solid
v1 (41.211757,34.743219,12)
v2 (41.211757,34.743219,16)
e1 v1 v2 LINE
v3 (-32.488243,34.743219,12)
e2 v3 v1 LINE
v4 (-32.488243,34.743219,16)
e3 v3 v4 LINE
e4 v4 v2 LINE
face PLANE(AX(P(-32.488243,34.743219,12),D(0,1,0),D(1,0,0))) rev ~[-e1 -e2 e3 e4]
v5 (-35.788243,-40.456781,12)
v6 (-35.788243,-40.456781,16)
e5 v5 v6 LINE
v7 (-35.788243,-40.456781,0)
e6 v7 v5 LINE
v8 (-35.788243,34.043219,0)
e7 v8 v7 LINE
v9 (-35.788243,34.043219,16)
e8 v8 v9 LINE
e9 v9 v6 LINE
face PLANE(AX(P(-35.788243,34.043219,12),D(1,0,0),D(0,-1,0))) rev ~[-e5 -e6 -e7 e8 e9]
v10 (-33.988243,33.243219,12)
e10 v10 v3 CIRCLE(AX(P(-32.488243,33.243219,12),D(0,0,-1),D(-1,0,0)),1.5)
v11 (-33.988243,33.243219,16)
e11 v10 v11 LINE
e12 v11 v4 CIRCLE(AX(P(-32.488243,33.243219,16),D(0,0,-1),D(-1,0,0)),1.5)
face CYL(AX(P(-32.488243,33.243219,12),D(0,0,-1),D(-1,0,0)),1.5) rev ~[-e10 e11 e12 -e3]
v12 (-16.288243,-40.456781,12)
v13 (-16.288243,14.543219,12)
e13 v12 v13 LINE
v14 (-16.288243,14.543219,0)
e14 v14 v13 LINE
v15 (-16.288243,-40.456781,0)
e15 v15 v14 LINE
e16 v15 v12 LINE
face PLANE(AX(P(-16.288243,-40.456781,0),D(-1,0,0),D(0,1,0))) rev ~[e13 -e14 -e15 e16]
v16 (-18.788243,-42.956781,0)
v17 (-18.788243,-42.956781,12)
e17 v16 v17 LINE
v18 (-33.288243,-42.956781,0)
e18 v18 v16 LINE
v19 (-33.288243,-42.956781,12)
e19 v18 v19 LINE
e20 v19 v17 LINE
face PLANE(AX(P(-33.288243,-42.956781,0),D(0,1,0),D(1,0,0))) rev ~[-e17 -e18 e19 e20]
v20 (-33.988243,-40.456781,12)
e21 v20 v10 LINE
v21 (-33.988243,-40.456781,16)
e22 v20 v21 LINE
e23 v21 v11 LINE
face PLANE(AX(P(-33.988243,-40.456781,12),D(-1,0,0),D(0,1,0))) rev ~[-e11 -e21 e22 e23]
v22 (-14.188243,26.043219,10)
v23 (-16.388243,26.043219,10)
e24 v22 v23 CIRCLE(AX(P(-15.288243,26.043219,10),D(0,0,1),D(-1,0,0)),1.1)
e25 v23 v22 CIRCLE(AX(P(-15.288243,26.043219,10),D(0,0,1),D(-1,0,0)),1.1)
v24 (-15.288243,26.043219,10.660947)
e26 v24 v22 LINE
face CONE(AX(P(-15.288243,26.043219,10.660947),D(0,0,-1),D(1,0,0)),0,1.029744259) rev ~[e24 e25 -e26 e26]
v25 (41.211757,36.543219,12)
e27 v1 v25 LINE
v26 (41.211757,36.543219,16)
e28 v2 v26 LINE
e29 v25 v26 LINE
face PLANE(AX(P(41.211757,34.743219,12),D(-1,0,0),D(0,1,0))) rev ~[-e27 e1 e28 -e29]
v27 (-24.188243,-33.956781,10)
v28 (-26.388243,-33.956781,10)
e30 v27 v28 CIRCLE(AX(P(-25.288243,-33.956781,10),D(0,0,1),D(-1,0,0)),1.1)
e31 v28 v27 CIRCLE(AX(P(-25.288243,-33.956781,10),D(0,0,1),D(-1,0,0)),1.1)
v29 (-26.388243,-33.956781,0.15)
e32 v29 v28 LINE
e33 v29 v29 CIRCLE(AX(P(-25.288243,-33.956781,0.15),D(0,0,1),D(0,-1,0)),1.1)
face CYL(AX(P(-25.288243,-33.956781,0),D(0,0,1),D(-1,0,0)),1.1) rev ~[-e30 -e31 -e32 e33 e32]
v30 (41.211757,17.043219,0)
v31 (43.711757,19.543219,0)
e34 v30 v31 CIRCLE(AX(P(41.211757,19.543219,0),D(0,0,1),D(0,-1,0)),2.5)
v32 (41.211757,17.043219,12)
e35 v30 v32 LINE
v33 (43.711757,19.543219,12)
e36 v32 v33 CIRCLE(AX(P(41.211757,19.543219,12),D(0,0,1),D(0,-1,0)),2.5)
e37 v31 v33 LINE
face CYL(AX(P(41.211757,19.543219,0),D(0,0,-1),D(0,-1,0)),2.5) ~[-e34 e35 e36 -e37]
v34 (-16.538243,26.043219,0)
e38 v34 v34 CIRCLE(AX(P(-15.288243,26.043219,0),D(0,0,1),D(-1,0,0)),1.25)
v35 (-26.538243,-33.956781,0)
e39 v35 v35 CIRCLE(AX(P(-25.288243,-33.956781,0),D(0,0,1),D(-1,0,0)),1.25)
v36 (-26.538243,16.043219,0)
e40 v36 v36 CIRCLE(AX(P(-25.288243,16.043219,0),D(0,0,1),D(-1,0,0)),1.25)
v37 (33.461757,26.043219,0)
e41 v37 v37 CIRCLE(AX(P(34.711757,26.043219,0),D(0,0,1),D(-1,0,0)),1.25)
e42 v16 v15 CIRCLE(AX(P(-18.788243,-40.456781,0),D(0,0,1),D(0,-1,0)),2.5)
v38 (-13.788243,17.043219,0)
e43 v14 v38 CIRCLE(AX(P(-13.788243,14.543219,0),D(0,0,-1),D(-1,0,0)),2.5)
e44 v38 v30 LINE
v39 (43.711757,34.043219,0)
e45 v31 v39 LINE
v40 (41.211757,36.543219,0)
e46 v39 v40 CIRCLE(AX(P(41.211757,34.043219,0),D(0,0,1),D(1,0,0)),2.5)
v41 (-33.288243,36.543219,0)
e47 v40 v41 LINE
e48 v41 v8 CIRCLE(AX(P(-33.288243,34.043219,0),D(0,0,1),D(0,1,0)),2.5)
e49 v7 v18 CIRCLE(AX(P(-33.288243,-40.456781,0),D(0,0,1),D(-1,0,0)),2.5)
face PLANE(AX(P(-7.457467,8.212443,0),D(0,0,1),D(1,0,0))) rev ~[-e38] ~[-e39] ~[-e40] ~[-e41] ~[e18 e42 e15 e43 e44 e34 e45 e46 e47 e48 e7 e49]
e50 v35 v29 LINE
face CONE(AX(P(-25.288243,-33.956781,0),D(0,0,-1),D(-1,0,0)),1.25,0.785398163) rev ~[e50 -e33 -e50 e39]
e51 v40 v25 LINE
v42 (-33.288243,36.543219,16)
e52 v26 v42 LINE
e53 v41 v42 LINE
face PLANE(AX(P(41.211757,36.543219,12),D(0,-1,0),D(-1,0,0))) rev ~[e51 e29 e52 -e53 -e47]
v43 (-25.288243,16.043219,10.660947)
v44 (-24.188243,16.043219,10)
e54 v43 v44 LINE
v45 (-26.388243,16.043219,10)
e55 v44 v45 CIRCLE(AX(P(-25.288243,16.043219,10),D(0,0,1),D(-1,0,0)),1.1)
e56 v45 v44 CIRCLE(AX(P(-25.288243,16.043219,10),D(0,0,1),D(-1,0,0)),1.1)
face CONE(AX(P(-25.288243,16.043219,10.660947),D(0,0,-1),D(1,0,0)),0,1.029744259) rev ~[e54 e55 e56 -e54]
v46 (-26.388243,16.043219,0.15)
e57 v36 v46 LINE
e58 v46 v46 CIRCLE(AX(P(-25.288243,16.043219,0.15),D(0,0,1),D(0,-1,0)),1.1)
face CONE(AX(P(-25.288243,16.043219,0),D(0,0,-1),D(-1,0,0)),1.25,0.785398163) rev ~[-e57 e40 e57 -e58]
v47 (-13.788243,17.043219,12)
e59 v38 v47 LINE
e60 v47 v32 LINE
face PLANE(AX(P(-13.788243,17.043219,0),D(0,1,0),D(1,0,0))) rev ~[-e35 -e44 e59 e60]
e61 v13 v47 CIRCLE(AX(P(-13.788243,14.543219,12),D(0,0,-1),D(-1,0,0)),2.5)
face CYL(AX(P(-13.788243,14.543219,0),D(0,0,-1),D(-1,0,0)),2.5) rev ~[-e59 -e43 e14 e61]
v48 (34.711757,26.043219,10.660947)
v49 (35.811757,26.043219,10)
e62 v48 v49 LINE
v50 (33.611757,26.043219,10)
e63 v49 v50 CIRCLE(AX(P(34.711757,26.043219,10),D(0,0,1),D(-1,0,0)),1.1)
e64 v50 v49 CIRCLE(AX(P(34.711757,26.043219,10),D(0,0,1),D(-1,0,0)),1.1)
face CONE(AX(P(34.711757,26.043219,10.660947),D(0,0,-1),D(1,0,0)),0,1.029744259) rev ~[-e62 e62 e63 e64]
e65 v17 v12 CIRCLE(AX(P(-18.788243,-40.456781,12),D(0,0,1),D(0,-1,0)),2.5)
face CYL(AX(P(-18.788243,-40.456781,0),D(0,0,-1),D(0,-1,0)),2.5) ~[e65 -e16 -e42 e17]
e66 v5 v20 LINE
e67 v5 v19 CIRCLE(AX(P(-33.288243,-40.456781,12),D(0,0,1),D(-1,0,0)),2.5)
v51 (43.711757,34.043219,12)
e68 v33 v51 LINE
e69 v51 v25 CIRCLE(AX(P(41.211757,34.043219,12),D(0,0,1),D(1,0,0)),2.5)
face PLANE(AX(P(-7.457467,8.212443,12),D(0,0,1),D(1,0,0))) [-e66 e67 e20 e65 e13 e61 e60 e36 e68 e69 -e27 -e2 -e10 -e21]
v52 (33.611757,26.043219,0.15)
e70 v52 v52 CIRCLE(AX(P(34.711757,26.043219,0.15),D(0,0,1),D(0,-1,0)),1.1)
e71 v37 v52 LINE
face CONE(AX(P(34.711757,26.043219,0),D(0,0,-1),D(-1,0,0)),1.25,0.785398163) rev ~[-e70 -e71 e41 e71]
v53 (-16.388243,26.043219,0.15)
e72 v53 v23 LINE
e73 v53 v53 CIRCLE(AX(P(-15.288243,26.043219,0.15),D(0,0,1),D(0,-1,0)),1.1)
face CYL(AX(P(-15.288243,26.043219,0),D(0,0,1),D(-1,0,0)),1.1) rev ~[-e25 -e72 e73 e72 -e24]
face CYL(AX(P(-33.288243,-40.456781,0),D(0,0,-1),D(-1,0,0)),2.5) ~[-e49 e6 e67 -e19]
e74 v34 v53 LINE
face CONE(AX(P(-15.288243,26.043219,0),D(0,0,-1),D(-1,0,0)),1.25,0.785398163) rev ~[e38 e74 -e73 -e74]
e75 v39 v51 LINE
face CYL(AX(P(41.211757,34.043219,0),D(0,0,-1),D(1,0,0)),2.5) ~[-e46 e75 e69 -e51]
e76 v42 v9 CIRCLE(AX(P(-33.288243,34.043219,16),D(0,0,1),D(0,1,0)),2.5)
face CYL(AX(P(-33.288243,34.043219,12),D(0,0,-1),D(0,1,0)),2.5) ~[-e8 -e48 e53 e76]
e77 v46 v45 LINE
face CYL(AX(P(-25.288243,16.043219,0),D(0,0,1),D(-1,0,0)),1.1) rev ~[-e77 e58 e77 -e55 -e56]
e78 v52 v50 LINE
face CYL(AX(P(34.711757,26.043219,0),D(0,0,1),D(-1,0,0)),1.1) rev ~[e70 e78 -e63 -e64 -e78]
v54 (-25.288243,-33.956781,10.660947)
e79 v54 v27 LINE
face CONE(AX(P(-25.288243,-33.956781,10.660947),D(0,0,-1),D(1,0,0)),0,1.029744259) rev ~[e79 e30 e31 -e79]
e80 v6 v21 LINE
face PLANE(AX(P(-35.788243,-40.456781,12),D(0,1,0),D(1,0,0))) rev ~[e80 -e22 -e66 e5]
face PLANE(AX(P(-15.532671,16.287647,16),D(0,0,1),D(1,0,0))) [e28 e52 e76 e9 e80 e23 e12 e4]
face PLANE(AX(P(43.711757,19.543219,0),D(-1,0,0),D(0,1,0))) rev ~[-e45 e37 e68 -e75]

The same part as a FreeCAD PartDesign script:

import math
import FreeCAD as App
import Part
import Sketcher

V = App.Vector

doc = App.newDocument("Part")
body = doc.addObject("PartDesign::Body", "Body")

# Sketch on XY plane
sketch1 = body.newObject("Sketcher::SketchObject", "Sketch")
sketch1.AttachmentSupport = (doc.getObject("XY_Plane"), [""])
sketch1.MapMode = "FlatFace"
sketch1.addGeometry(Part.LineSegment(V(41.2, 36.5, 0), V(-33.3, 36.5, 0)), False)
sketch1.addGeometry(Part.ArcOfCircle(Part.Circle(V(-33.3, 34, 0), V(0, 0, 1), 2.5), math.radians(90), math.radians(180)), False)
sketch1.addGeometry(Part.LineSegment(V(-35.8, 34, 0), V(-35.8, -40.5, 0)), False)
sketch1.addGeometry(Part.ArcOfCircle(Part.Circle(V(-33.3, -40.5, 0), V(0, 0, 1), 2.5), math.radians(180), math.radians(270)), False)
sketch1.addGeometry(Part.LineSegment(V(-33.3, -43, 0), V(-18.8, -43, 0)), False)
sketch1.addGeometry(Part.ArcOfCircle(Part.Circle(V(-18.8, -40.5, 0), V(0, 0, 1), 2.5), math.radians(-90), math.radians(0)), False)
sketch1.addGeometry(Part.LineSegment(V(-16.3, -40.5, 0), V(-16.3, 14.5, 0)), False)
sketch1.addGeometry(Part.ArcOfCircle(Part.Circle(V(-13.8, 14.5, 0), V(0, 0, 1), 2.5), math.radians(90), math.radians(180)), False)
sketch1.addGeometry(Part.LineSegment(V(-13.8, 17, 0), V(41.2, 17, 0)), False)
sketch1.addGeometry(Part.ArcOfCircle(Part.Circle(V(41.2, 19.5, 0), V(0, 0, 1), 2.5), math.radians(-90), math.radians(0)), False)
sketch1.addGeometry(Part.LineSegment(V(43.7, 19.5, 0), V(43.7, 34, 0)), False)
sketch1.addGeometry(Part.ArcOfCircle(Part.Circle(V(41.2, 34, 0), V(0, 0, 1), 2.5), math.radians(0), math.radians(90)), False)
sketch1.addConstraint(Sketcher.Constraint("Tangent", 0, 2, 1, 1))
sketch1.addConstraint(Sketcher.Constraint("Tangent", 1, 2, 2, 1))
sketch1.addConstraint(Sketcher.Constraint("Tangent", 2, 2, 3, 1))
sketch1.addConstraint(Sketcher.Constraint("Tangent", 3, 2, 4, 1))
sketch1.addConstraint(Sketcher.Constraint("Tangent", 4, 2, 5, 1))
sketch1.addConstraint(Sketcher.Constraint("Tangent", 5, 2, 6, 1))
sketch1.addConstraint(Sketcher.Constraint("Tangent", 6, 2, 7, 2))
sketch1.addConstraint(Sketcher.Constraint("Tangent", 7, 1, 8, 1))
sketch1.addConstraint(Sketcher.Constraint("Tangent", 8, 2, 9, 1))
sketch1.addConstraint(Sketcher.Constraint("Tangent", 9, 2, 10, 1))
sketch1.addConstraint(Sketcher.Constraint("Tangent", 10, 2, 11, 1))
sketch1.addConstraint(Sketcher.Constraint("Tangent", 11, 2, 0, 1))
sketch1.addConstraint(Sketcher.Constraint("Horizontal", 0))
sketch1.addConstraint(Sketcher.Constraint("Vertical", 2))
sketch1.addConstraint(Sketcher.Constraint("Horizontal", 4))
sketch1.addConstraint(Sketcher.Constraint("Vertical", 6))
sketch1.addConstraint(Sketcher.Constraint("Horizontal", 8))
sketch1.addConstraint(Sketcher.Constraint("Vertical", 10))
sketch1.addConstraint(Sketcher.Constraint("Equal", 1, 3))
sketch1.addConstraint(Sketcher.Constraint("Equal", 3, 5))
sketch1.addConstraint(Sketcher.Constraint("Equal", 5, 7))
sketch1.addConstraint(Sketcher.Constraint("Equal", 7, 9))
sketch1.addConstraint(Sketcher.Constraint("Equal", 9, 11))
sketch1.addConstraint(Sketcher.Constraint("Equal", 0, 2))
sketch1.addConstraint(Sketcher.Constraint("Equal", 8, 6))
sketch1.addConstraint(Sketcher.Constraint("Radius", 1, 2.5))
sketch1.addConstraint(Sketcher.Constraint("DistanceX", 8, 1, 8, 2, 55.0))
sketch1.addConstraint(Sketcher.Constraint("DistanceX", 0, 2, 0, 1, 74.5))
sketch1.addConstraint(Sketcher.Constraint("DistanceY", -1, 1, 1, 3, 34.043219))
sketch1.addConstraint(Sketcher.Constraint("DistanceX", 1, 3, -1, 1, 33.288243))
pad1 = body.newObject("PartDesign::Pad", "Pad")
pad1.Profile = sketch1
pad1.Length = 12

# Sketch on XY plane
sketch2 = body.newObject("Sketcher::SketchObject", "Sketch001")
sketch2.AttachmentSupport = (doc.getObject("XY_Plane"), [""])
sketch2.MapMode = "FlatFace"
sketch2.AttachmentOffset = App.Placement(V(0, 0, 12), App.Rotation())
sketch2.addGeometry(Part.ArcOfCircle(Part.Circle(V(-32.5, 33.2, 0), V(0, 0, 1), 1.5), math.radians(90), math.radians(180)), False)
sketch2.addGeometry(Part.LineSegment(V(-32.5, 34.7, 0), V(41.2, 34.7, 0)), False)
sketch2.addGeometry(Part.LineSegment(V(41.2, 34.7, 0), V(41.2, 36.5, 0)), False)
sketch2.addGeometry(Part.LineSegment(V(41.2, 36.5, 0), V(-33.3, 36.5, 0)), False)
sketch2.addGeometry(Part.ArcOfCircle(Part.Circle(V(-33.3, 34, 0), V(0, 0, 1), 2.5), math.radians(90), math.radians(180)), False)
sketch2.addGeometry(Part.LineSegment(V(-35.8, 34, 0), V(-35.8, -40.5, 0)), False)
sketch2.addGeometry(Part.LineSegment(V(-35.8, -40.5, 0), V(-34, -40.5, 0)), False)
sketch2.addGeometry(Part.LineSegment(V(-34, -40.5, 0), V(-34, 33.2, 0)), False)
sketch2.addConstraint(Sketcher.Constraint("Tangent", 0, 1, 1, 1))
sketch2.addConstraint(Sketcher.Constraint("Coincident", 1, 2, 2, 1))
sketch2.addConstraint(Sketcher.Constraint("Coincident", 2, 2, 3, 1))
sketch2.addConstraint(Sketcher.Constraint("Tangent", 3, 2, 4, 1))
sketch2.addConstraint(Sketcher.Constraint("Tangent", 4, 2, 5, 1))
sketch2.addConstraint(Sketcher.Constraint("Coincident", 5, 2, 6, 1))
sketch2.addConstraint(Sketcher.Constraint("Coincident", 6, 2, 7, 1))
sketch2.addConstraint(Sketcher.Constraint("Tangent", 7, 2, 0, 2))
sketch2.addConstraint(Sketcher.Constraint("Horizontal", 1))
sketch2.addConstraint(Sketcher.Constraint("Vertical", 2))
sketch2.addConstraint(Sketcher.Constraint("Horizontal", 3))
sketch2.addConstraint(Sketcher.Constraint("Vertical", 5))
sketch2.addConstraint(Sketcher.Constraint("Horizontal", 6))
sketch2.addConstraint(Sketcher.Constraint("Vertical", 7))
sketch2.addConstraint(Sketcher.Constraint("Equal", 6, 2))
sketch2.addConstraint(Sketcher.Constraint("Equal", 3, 5))
sketch2.addConstraint(Sketcher.Constraint("Radius", 0, 1.5))
sketch2.addConstraint(Sketcher.Constraint("Radius", 4, 2.5))
sketch2.addConstraint(Sketcher.Constraint("DistanceX", 1, 1, 1, 2, 73.7))
sketch2.addConstraint(Sketcher.Constraint("DistanceX", 3, 2, 3, 1, 74.5))
sketch2.addConstraint(Sketcher.Constraint("DistanceY", -1, 1, 0, 3, 33.243219))
sketch2.addConstraint(Sketcher.Constraint("DistanceX", 0, 3, -1, 1, 32.488243))
pad2 = body.newObject("PartDesign::Pad", "Pad001")
pad2.Profile = sketch2
pad2.Length = 4

# Sketch on XY plane
sketch3 = body.newObject("Sketcher::SketchObject", "Sketch002")
sketch3.AttachmentSupport = (doc.getObject("XY_Plane"), [""])
sketch3.MapMode = "FlatFace"
sketch3.addGeometry(Part.Circle(V(34.7, 26, 0), V(0, 0, 1), 1.1), False)
sketch3.addConstraint(Sketcher.Constraint("Diameter", 0, 2.2))
sketch3.addConstraint(Sketcher.Constraint("DistanceY", -1, 1, 0, 3, 26.043219))
sketch3.addConstraint(Sketcher.Constraint("DistanceX", -1, 1, 0, 3, 34.711757))
doc.recompute()
hole = body.newObject("PartDesign::Hole", "Hole")
hole.Profile = sketch3
hole.ThreadType = "None"
hole.Diameter = 2.2
hole.DepthType = "Dimension"
hole.Depth = 10
hole.DrillPoint = "Angled"
hole.DrillPointAngle = 118
hole.HoleCutType = "Countersink"
hole.HoleCutDiameter = 2.5
hole.HoleCutCountersinkAngle = 90
hole.Reversed = True

# Sketch on XY plane
sketch4 = body.newObject("Sketcher::SketchObject", "Sketch003")
sketch4.AttachmentSupport = (doc.getObject("XY_Plane"), [""])
sketch4.MapMode = "FlatFace"
sketch4.addGeometry(Part.Circle(V(-15.3, 26, 0), V(0, 0, 1), 1.1), False)
sketch4.addConstraint(Sketcher.Constraint("Diameter", 0, 2.2))
sketch4.addConstraint(Sketcher.Constraint("DistanceY", -1, 1, 0, 3, 26.043219))
sketch4.addConstraint(Sketcher.Constraint("DistanceX", 0, 3, -1, 1, 15.288243))
doc.recompute()
hole2 = body.newObject("PartDesign::Hole", "Hole001")
hole2.Profile = sketch4
hole2.ThreadType = "None"
hole2.Diameter = 2.2
hole2.DepthType = "Dimension"
hole2.Depth = 10
hole2.DrillPoint = "Angled"
hole2.DrillPointAngle = 118
hole2.HoleCutType = "Countersink"
hole2.HoleCutDiameter = 2.5
hole2.HoleCutCountersinkAngle = 90
hole2.Reversed = True

# Sketch on XY plane
sketch5 = body.newObject("Sketcher::SketchObject", "Sketch004")
sketch5.AttachmentSupport = (doc.getObject("XY_Plane"), [""])
sketch5.MapMode = "FlatFace"
sketch5.addGeometry(Part.Circle(V(-25.3, 16, 0), V(0, 0, 1), 1.1), False)
sketch5.addConstraint(Sketcher.Constraint("Diameter", 0, 2.2))
sketch5.addConstraint(Sketcher.Constraint("DistanceY", -1, 1, 0, 3, 16.043219))
sketch5.addConstraint(Sketcher.Constraint("DistanceX", 0, 3, -1, 1, 25.288243))
doc.recompute()
hole3 = body.newObject("PartDesign::Hole", "Hole002")
hole3.Profile = sketch5
hole3.ThreadType = "None"
hole3.Diameter = 2.2
hole3.DepthType = "Dimension"
hole3.Depth = 10
hole3.DrillPoint = "Angled"
hole3.DrillPointAngle = 118
hole3.HoleCutType = "Countersink"
hole3.HoleCutDiameter = 2.5
hole3.HoleCutCountersinkAngle = 90
hole3.Reversed = True

# Sketch on XY plane
sketch6 = body.newObject("Sketcher::SketchObject", "Sketch005")
sketch6.AttachmentSupport = (doc.getObject("XY_Plane"), [""])
sketch6.MapMode = "FlatFace"
sketch6.addGeometry(Part.Circle(V(-25.3, -34, 0), V(0, 0, 1), 1.1), False)
sketch6.addConstraint(Sketcher.Constraint("Diameter", 0, 2.2))
sketch6.addConstraint(Sketcher.Constraint("DistanceY", 0, 3, -1, 1, 33.956781))
sketch6.addConstraint(Sketcher.Constraint("DistanceX", 0, 3, -1, 1, 25.288243))
doc.recompute()
hole4 = body.newObject("PartDesign::Hole", "Hole003")
hole4.Profile = sketch6
hole4.ThreadType = "None"
hole4.Diameter = 2.2
hole4.DepthType = "Dimension"
hole4.Depth = 10
hole4.DrillPoint = "Angled"
hole4.DrillPointAngle = 118
hole4.HoleCutType = "Countersink"
hole4.HoleCutDiameter = 2.5
hole4.HoleCutCountersinkAngle = 90
hole4.Reversed = True

doc.recompute()
